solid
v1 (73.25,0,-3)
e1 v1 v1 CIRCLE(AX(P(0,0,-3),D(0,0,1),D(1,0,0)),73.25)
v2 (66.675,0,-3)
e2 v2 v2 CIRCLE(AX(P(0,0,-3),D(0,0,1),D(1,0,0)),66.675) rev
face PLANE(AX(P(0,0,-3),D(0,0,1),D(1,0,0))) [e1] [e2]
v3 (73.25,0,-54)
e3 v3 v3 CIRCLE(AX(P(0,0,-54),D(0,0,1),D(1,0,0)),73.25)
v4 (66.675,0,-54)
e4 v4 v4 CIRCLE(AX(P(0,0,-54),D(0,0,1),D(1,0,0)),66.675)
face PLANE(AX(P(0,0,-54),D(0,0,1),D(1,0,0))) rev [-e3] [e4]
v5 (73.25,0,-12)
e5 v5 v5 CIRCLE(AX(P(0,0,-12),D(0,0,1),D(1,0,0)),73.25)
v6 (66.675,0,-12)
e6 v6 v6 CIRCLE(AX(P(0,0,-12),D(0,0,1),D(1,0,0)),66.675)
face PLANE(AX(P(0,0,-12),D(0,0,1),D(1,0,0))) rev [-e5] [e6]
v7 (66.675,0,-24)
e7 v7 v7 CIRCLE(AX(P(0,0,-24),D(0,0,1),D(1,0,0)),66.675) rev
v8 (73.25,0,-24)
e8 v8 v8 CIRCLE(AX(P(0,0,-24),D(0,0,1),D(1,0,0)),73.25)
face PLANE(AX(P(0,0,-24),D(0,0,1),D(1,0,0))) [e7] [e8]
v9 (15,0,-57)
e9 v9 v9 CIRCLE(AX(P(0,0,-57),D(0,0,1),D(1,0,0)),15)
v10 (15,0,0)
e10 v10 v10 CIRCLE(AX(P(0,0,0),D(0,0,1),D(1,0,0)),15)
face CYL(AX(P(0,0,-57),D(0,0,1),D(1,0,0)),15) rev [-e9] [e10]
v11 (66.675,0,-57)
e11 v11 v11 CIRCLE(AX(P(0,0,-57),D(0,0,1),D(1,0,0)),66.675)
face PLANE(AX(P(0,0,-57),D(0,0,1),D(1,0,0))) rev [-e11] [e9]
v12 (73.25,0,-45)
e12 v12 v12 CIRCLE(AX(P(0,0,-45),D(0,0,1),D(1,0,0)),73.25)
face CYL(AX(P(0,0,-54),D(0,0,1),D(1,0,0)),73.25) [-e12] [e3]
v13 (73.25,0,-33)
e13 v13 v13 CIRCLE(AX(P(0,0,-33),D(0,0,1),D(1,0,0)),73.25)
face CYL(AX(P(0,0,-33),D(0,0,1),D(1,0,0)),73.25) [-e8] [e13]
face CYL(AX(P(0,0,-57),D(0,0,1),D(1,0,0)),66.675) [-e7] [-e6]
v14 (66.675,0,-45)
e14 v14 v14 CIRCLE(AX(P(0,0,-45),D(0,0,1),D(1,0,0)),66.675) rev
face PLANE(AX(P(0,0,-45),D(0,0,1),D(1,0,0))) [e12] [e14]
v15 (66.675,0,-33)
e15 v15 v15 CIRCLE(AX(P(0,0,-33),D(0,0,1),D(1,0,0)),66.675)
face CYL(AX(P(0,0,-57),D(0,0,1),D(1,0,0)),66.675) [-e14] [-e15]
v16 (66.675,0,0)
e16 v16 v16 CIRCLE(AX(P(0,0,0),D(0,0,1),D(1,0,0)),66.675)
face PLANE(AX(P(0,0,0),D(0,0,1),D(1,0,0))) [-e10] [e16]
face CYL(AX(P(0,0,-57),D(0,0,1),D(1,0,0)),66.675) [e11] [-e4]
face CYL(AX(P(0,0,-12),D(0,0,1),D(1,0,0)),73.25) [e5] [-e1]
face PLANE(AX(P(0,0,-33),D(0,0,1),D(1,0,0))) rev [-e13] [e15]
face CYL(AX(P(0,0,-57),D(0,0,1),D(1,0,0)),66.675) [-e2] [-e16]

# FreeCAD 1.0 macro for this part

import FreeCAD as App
import Part
import Sketcher
from FreeCAD import Vector

doc = App.newDocument("Part")
params = doc.addObject("Spreadsheet::Sheet", "Params")
for row, (alias, value) in enumerate([
    ("sketch1_diameter", "30 mm"),
    ("sketch1_diameter2", "133.35 mm"),
    ("pad1_length", "57 mm"),
    ("sketch2_diameter", "146.5 mm"),
    ("sketch2_diameter2", "133.35 mm"),
    ("pad2_length", "9 mm"),
    ("linearpattern_pitch", "21 mm"),
], start=1):
    params.set(f"A{row}", alias)
    params.set(f"B{row}", "=" + value)
    params.setAlias(f"B{row}", alias)

body = doc.addObject("PartDesign::Body", "Body")

sketch1 = body.newObject("Sketcher::SketchObject", "Sketch")
sketch1.AttachmentSupport = (doc.getObject("XY_Plane"), [""])
sketch1.MapMode = "FlatFace"
sketch1.addGeometry([
    Part.Circle(Vector(0, 0, 0), Vector(0, 0, 1), 67),
    Part.Circle(Vector(0, 0, 0), Vector(0, 0, 1), 15),
], False)
sketch1.addConstraint([
    Sketcher.Constraint("Coincident", 0, 3, -1, 1),
    Sketcher.Constraint("Coincident", 1, 3, -1, 1),
    Sketcher.Constraint("Diameter", 1, 30.0),
    Sketcher.Constraint("Diameter", 0, 133.35),
])
sketch1.setExpression("Constraints[2]", "Params.sketch1_diameter")
sketch1.setExpression("Constraints[3]", "Params.sketch1_diameter2")
pad1 = body.newObject("PartDesign::Pad", "Pad")
pad1.Profile = sketch1
pad1.setExpression("Length", "Params.pad1_length")
pad1.Reversed = True

sketch2 = body.newObject("Sketcher::SketchObject", "Sketch001")
sketch2.AttachmentSupport = (doc.getObject("XY_Plane"), [""])
sketch2.MapMode = "FlatFace"
sketch2.AttachmentOffset = App.Placement(Vector(0, 0, -3), App.Rotation())
sketch2.addGeometry([
    Part.Circle(Vector(0, 0, 0), Vector(0, 0, 1), 73),
    Part.Circle(Vector(0, 0, 0), Vector(0, 0, 1), 67),
], False)
sketch2.addConstraint([
    Sketcher.Constraint("Coincident", 0, 3, -1, 1),
    Sketcher.Constraint("Coincident", 1, 3, -1, 1),
    Sketcher.Constraint("Diameter", 0, 146.5),
    Sketcher.Constraint("Diameter", 1, 133.35),
])
sketch2.setExpression("Constraints[2]", "Params.sketch2_diameter")
sketch2.setExpression("Constraints[3]", "Params.sketch2_diameter2")
pad2 = body.newObject("PartDesign::Pad", "Pad001")
pad2.Profile = sketch2
pad2.setExpression("Length", "Params.pad2_length")
pad2.Reversed = True
doc.recompute()

linearpattern = body.newObject("PartDesign::LinearPattern", "LinearPattern")
linearpattern.Originals = [pad2]
linearpattern.Direction = (doc.getObject("Z_Axis"), [""])
linearpattern.Mode = "offset"
linearpattern.setExpression("Offset", "Params.linearpattern_pitch")
linearpattern.Occurrences = 3
linearpattern.Reversed = True
body.Tip = linearpattern

doc.recompute()
